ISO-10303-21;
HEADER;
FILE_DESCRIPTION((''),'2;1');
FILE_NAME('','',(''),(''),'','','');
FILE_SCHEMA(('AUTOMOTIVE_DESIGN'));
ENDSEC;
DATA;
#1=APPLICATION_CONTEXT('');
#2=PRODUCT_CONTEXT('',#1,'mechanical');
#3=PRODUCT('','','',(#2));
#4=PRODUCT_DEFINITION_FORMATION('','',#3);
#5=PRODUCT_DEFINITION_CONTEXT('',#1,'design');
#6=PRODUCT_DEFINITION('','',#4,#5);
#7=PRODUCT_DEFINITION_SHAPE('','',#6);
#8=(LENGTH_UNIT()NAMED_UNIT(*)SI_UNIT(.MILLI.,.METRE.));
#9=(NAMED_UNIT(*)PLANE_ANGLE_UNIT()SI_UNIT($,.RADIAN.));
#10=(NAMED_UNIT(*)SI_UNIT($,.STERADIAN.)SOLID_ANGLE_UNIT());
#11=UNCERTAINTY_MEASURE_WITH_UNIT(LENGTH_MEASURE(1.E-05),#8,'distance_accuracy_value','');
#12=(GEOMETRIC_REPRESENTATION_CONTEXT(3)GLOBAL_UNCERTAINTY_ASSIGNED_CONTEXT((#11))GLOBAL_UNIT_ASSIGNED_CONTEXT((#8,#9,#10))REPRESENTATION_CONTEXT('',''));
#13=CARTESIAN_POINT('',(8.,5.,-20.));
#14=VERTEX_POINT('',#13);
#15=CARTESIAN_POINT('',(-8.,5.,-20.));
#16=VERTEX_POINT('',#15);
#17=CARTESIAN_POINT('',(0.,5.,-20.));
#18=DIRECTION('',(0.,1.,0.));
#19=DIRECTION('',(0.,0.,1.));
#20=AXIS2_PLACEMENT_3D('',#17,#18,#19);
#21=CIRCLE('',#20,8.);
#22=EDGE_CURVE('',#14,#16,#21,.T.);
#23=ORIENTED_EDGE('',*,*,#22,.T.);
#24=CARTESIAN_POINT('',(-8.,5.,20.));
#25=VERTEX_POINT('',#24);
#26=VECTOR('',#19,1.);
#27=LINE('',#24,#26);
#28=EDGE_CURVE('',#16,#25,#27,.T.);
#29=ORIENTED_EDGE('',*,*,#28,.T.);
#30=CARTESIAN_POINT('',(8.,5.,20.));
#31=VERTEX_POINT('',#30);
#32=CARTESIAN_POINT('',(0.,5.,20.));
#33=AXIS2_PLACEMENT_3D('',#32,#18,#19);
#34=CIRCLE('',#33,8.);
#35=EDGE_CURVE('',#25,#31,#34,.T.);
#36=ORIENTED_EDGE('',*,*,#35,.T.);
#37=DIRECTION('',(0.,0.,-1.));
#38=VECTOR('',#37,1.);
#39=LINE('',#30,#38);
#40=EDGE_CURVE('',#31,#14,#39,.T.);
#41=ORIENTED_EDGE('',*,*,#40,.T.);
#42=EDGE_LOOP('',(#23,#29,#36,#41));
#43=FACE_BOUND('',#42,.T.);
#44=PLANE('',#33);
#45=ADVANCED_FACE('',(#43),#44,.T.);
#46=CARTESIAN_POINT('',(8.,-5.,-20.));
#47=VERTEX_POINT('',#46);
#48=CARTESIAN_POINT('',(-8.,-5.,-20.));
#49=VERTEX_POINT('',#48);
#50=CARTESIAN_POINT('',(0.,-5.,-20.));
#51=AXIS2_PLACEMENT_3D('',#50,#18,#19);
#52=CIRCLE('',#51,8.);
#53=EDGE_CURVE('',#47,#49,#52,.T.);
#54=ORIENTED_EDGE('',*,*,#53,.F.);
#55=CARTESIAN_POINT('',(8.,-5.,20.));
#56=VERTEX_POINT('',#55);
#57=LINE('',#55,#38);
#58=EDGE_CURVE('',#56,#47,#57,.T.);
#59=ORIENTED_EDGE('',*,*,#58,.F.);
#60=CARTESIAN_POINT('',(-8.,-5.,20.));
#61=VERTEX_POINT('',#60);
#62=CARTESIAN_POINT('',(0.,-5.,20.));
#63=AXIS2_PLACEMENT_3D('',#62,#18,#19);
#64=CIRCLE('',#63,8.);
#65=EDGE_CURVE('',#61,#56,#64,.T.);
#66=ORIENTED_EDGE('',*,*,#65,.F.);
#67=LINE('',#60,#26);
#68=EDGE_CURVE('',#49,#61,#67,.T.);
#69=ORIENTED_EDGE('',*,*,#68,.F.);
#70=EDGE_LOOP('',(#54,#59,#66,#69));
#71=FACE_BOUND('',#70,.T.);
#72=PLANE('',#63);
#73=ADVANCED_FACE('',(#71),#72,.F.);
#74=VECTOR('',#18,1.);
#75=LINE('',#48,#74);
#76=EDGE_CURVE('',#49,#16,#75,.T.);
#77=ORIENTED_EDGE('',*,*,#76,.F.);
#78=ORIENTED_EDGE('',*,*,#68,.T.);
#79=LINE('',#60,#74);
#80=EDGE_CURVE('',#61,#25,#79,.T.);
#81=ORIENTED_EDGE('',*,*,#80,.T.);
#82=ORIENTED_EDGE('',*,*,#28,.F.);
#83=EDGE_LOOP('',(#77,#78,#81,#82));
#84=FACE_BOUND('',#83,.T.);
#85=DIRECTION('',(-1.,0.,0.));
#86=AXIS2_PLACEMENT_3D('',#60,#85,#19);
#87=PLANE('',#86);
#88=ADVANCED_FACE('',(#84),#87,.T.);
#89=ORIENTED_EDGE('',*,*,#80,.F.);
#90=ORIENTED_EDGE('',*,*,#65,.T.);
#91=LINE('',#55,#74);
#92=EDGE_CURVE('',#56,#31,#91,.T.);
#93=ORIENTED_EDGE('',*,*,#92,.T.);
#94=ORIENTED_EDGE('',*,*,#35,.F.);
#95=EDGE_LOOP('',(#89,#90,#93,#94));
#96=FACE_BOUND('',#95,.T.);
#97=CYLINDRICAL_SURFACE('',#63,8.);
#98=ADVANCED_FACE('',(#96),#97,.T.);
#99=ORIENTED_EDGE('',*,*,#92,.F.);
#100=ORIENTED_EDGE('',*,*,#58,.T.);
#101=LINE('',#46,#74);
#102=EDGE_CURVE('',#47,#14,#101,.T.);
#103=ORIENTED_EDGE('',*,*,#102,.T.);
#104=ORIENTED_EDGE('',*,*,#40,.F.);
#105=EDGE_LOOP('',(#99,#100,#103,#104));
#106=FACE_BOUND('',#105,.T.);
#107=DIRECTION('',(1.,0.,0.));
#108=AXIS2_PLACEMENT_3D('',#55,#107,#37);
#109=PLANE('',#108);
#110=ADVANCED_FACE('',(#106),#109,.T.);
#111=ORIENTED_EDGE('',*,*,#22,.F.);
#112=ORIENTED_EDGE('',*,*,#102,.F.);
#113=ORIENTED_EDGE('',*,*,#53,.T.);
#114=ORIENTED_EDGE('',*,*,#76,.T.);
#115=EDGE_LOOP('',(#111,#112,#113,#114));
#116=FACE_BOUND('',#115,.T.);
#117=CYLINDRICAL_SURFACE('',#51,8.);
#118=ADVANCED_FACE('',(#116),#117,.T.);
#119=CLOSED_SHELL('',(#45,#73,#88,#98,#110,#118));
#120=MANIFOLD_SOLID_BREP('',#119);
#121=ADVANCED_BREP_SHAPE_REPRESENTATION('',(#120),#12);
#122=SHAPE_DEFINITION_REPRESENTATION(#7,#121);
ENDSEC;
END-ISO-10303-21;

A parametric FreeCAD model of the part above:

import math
import FreeCAD as App
import Part
import Sketcher

doc = App.newDocument("Part")
params = doc.addObject("Spreadsheet::Sheet", "Params")
for row, (alias, value) in enumerate([
    ("sketch1_radius", "8 mm"),
    ("sketch1_height", "40 mm"),
    ("pad1_length", "10 mm"),
], start=1):
    params.set(f"A{row}", alias)
    params.set(f"B{row}", "=" + value)
    params.setAlias(f"B{row}", alias)

body = doc.addObject("PartDesign::Body", "Body")

# Sketch on XZ plane
sketch1 = body.newObject("Sketcher::SketchObject", "Sketch")
sketch1.AttachmentSupport = (doc.getObject("XZ_Plane"), [""])
sketch1.MapMode = "FlatFace"
sketch1.AttachmentOffset = App.Placement(App.Vector(0, 0, -5), App.Rotation())
sketch1.addGeometry([
    Part.LineSegment(App.Vector(-8, -20, 0), App.Vector(-8, 20, 0)),
    Part.ArcOfCircle(Part.Circle(App.Vector(0, 20, 0), App.Vector(0, 0, 1), 8), math.radians(0), math.radians(180)),
    Part.LineSegment(App.Vector(8, 20, 0), App.Vector(8, -20, 0)),
    Part.ArcOfCircle(Part.Circle(App.Vector(0, -20, 0), App.Vector(0, 0, 1), 8), math.radians(180), math.radians(360)),
], False)
sketch1.addConstraint([
    Sketcher.Constraint("Tangent", 0, 2, 1, 2),
    Sketcher.Constraint("Tangent", 1, 1, 2, 1),
    Sketcher.Constraint("Tangent", 2, 2, 3, 2),
    Sketcher.Constraint("Tangent", 3, 1, 0, 1),
    Sketcher.Constraint("Vertical", 0),
    Sketcher.Constraint("Vertical", 2),
    Sketcher.Constraint("Symmetric", 1, 3, 3, 3, -1, 1),
    Sketcher.Constraint("Radius", 1, 8.0),
    Sketcher.Constraint("DistanceY", 0, 1, 0, 2, 40.0),
])
sketch1.setExpression("Constraints[7]", "Params.sketch1_radius")
sketch1.setExpression("Constraints[8]", "Params.sketch1_height")
pad1 = body.newObject("PartDesign::Pad", "Pad")
pad1.Profile = sketch1
pad1.setExpression("Length", "Params.pad1_length")

doc.recompute()
